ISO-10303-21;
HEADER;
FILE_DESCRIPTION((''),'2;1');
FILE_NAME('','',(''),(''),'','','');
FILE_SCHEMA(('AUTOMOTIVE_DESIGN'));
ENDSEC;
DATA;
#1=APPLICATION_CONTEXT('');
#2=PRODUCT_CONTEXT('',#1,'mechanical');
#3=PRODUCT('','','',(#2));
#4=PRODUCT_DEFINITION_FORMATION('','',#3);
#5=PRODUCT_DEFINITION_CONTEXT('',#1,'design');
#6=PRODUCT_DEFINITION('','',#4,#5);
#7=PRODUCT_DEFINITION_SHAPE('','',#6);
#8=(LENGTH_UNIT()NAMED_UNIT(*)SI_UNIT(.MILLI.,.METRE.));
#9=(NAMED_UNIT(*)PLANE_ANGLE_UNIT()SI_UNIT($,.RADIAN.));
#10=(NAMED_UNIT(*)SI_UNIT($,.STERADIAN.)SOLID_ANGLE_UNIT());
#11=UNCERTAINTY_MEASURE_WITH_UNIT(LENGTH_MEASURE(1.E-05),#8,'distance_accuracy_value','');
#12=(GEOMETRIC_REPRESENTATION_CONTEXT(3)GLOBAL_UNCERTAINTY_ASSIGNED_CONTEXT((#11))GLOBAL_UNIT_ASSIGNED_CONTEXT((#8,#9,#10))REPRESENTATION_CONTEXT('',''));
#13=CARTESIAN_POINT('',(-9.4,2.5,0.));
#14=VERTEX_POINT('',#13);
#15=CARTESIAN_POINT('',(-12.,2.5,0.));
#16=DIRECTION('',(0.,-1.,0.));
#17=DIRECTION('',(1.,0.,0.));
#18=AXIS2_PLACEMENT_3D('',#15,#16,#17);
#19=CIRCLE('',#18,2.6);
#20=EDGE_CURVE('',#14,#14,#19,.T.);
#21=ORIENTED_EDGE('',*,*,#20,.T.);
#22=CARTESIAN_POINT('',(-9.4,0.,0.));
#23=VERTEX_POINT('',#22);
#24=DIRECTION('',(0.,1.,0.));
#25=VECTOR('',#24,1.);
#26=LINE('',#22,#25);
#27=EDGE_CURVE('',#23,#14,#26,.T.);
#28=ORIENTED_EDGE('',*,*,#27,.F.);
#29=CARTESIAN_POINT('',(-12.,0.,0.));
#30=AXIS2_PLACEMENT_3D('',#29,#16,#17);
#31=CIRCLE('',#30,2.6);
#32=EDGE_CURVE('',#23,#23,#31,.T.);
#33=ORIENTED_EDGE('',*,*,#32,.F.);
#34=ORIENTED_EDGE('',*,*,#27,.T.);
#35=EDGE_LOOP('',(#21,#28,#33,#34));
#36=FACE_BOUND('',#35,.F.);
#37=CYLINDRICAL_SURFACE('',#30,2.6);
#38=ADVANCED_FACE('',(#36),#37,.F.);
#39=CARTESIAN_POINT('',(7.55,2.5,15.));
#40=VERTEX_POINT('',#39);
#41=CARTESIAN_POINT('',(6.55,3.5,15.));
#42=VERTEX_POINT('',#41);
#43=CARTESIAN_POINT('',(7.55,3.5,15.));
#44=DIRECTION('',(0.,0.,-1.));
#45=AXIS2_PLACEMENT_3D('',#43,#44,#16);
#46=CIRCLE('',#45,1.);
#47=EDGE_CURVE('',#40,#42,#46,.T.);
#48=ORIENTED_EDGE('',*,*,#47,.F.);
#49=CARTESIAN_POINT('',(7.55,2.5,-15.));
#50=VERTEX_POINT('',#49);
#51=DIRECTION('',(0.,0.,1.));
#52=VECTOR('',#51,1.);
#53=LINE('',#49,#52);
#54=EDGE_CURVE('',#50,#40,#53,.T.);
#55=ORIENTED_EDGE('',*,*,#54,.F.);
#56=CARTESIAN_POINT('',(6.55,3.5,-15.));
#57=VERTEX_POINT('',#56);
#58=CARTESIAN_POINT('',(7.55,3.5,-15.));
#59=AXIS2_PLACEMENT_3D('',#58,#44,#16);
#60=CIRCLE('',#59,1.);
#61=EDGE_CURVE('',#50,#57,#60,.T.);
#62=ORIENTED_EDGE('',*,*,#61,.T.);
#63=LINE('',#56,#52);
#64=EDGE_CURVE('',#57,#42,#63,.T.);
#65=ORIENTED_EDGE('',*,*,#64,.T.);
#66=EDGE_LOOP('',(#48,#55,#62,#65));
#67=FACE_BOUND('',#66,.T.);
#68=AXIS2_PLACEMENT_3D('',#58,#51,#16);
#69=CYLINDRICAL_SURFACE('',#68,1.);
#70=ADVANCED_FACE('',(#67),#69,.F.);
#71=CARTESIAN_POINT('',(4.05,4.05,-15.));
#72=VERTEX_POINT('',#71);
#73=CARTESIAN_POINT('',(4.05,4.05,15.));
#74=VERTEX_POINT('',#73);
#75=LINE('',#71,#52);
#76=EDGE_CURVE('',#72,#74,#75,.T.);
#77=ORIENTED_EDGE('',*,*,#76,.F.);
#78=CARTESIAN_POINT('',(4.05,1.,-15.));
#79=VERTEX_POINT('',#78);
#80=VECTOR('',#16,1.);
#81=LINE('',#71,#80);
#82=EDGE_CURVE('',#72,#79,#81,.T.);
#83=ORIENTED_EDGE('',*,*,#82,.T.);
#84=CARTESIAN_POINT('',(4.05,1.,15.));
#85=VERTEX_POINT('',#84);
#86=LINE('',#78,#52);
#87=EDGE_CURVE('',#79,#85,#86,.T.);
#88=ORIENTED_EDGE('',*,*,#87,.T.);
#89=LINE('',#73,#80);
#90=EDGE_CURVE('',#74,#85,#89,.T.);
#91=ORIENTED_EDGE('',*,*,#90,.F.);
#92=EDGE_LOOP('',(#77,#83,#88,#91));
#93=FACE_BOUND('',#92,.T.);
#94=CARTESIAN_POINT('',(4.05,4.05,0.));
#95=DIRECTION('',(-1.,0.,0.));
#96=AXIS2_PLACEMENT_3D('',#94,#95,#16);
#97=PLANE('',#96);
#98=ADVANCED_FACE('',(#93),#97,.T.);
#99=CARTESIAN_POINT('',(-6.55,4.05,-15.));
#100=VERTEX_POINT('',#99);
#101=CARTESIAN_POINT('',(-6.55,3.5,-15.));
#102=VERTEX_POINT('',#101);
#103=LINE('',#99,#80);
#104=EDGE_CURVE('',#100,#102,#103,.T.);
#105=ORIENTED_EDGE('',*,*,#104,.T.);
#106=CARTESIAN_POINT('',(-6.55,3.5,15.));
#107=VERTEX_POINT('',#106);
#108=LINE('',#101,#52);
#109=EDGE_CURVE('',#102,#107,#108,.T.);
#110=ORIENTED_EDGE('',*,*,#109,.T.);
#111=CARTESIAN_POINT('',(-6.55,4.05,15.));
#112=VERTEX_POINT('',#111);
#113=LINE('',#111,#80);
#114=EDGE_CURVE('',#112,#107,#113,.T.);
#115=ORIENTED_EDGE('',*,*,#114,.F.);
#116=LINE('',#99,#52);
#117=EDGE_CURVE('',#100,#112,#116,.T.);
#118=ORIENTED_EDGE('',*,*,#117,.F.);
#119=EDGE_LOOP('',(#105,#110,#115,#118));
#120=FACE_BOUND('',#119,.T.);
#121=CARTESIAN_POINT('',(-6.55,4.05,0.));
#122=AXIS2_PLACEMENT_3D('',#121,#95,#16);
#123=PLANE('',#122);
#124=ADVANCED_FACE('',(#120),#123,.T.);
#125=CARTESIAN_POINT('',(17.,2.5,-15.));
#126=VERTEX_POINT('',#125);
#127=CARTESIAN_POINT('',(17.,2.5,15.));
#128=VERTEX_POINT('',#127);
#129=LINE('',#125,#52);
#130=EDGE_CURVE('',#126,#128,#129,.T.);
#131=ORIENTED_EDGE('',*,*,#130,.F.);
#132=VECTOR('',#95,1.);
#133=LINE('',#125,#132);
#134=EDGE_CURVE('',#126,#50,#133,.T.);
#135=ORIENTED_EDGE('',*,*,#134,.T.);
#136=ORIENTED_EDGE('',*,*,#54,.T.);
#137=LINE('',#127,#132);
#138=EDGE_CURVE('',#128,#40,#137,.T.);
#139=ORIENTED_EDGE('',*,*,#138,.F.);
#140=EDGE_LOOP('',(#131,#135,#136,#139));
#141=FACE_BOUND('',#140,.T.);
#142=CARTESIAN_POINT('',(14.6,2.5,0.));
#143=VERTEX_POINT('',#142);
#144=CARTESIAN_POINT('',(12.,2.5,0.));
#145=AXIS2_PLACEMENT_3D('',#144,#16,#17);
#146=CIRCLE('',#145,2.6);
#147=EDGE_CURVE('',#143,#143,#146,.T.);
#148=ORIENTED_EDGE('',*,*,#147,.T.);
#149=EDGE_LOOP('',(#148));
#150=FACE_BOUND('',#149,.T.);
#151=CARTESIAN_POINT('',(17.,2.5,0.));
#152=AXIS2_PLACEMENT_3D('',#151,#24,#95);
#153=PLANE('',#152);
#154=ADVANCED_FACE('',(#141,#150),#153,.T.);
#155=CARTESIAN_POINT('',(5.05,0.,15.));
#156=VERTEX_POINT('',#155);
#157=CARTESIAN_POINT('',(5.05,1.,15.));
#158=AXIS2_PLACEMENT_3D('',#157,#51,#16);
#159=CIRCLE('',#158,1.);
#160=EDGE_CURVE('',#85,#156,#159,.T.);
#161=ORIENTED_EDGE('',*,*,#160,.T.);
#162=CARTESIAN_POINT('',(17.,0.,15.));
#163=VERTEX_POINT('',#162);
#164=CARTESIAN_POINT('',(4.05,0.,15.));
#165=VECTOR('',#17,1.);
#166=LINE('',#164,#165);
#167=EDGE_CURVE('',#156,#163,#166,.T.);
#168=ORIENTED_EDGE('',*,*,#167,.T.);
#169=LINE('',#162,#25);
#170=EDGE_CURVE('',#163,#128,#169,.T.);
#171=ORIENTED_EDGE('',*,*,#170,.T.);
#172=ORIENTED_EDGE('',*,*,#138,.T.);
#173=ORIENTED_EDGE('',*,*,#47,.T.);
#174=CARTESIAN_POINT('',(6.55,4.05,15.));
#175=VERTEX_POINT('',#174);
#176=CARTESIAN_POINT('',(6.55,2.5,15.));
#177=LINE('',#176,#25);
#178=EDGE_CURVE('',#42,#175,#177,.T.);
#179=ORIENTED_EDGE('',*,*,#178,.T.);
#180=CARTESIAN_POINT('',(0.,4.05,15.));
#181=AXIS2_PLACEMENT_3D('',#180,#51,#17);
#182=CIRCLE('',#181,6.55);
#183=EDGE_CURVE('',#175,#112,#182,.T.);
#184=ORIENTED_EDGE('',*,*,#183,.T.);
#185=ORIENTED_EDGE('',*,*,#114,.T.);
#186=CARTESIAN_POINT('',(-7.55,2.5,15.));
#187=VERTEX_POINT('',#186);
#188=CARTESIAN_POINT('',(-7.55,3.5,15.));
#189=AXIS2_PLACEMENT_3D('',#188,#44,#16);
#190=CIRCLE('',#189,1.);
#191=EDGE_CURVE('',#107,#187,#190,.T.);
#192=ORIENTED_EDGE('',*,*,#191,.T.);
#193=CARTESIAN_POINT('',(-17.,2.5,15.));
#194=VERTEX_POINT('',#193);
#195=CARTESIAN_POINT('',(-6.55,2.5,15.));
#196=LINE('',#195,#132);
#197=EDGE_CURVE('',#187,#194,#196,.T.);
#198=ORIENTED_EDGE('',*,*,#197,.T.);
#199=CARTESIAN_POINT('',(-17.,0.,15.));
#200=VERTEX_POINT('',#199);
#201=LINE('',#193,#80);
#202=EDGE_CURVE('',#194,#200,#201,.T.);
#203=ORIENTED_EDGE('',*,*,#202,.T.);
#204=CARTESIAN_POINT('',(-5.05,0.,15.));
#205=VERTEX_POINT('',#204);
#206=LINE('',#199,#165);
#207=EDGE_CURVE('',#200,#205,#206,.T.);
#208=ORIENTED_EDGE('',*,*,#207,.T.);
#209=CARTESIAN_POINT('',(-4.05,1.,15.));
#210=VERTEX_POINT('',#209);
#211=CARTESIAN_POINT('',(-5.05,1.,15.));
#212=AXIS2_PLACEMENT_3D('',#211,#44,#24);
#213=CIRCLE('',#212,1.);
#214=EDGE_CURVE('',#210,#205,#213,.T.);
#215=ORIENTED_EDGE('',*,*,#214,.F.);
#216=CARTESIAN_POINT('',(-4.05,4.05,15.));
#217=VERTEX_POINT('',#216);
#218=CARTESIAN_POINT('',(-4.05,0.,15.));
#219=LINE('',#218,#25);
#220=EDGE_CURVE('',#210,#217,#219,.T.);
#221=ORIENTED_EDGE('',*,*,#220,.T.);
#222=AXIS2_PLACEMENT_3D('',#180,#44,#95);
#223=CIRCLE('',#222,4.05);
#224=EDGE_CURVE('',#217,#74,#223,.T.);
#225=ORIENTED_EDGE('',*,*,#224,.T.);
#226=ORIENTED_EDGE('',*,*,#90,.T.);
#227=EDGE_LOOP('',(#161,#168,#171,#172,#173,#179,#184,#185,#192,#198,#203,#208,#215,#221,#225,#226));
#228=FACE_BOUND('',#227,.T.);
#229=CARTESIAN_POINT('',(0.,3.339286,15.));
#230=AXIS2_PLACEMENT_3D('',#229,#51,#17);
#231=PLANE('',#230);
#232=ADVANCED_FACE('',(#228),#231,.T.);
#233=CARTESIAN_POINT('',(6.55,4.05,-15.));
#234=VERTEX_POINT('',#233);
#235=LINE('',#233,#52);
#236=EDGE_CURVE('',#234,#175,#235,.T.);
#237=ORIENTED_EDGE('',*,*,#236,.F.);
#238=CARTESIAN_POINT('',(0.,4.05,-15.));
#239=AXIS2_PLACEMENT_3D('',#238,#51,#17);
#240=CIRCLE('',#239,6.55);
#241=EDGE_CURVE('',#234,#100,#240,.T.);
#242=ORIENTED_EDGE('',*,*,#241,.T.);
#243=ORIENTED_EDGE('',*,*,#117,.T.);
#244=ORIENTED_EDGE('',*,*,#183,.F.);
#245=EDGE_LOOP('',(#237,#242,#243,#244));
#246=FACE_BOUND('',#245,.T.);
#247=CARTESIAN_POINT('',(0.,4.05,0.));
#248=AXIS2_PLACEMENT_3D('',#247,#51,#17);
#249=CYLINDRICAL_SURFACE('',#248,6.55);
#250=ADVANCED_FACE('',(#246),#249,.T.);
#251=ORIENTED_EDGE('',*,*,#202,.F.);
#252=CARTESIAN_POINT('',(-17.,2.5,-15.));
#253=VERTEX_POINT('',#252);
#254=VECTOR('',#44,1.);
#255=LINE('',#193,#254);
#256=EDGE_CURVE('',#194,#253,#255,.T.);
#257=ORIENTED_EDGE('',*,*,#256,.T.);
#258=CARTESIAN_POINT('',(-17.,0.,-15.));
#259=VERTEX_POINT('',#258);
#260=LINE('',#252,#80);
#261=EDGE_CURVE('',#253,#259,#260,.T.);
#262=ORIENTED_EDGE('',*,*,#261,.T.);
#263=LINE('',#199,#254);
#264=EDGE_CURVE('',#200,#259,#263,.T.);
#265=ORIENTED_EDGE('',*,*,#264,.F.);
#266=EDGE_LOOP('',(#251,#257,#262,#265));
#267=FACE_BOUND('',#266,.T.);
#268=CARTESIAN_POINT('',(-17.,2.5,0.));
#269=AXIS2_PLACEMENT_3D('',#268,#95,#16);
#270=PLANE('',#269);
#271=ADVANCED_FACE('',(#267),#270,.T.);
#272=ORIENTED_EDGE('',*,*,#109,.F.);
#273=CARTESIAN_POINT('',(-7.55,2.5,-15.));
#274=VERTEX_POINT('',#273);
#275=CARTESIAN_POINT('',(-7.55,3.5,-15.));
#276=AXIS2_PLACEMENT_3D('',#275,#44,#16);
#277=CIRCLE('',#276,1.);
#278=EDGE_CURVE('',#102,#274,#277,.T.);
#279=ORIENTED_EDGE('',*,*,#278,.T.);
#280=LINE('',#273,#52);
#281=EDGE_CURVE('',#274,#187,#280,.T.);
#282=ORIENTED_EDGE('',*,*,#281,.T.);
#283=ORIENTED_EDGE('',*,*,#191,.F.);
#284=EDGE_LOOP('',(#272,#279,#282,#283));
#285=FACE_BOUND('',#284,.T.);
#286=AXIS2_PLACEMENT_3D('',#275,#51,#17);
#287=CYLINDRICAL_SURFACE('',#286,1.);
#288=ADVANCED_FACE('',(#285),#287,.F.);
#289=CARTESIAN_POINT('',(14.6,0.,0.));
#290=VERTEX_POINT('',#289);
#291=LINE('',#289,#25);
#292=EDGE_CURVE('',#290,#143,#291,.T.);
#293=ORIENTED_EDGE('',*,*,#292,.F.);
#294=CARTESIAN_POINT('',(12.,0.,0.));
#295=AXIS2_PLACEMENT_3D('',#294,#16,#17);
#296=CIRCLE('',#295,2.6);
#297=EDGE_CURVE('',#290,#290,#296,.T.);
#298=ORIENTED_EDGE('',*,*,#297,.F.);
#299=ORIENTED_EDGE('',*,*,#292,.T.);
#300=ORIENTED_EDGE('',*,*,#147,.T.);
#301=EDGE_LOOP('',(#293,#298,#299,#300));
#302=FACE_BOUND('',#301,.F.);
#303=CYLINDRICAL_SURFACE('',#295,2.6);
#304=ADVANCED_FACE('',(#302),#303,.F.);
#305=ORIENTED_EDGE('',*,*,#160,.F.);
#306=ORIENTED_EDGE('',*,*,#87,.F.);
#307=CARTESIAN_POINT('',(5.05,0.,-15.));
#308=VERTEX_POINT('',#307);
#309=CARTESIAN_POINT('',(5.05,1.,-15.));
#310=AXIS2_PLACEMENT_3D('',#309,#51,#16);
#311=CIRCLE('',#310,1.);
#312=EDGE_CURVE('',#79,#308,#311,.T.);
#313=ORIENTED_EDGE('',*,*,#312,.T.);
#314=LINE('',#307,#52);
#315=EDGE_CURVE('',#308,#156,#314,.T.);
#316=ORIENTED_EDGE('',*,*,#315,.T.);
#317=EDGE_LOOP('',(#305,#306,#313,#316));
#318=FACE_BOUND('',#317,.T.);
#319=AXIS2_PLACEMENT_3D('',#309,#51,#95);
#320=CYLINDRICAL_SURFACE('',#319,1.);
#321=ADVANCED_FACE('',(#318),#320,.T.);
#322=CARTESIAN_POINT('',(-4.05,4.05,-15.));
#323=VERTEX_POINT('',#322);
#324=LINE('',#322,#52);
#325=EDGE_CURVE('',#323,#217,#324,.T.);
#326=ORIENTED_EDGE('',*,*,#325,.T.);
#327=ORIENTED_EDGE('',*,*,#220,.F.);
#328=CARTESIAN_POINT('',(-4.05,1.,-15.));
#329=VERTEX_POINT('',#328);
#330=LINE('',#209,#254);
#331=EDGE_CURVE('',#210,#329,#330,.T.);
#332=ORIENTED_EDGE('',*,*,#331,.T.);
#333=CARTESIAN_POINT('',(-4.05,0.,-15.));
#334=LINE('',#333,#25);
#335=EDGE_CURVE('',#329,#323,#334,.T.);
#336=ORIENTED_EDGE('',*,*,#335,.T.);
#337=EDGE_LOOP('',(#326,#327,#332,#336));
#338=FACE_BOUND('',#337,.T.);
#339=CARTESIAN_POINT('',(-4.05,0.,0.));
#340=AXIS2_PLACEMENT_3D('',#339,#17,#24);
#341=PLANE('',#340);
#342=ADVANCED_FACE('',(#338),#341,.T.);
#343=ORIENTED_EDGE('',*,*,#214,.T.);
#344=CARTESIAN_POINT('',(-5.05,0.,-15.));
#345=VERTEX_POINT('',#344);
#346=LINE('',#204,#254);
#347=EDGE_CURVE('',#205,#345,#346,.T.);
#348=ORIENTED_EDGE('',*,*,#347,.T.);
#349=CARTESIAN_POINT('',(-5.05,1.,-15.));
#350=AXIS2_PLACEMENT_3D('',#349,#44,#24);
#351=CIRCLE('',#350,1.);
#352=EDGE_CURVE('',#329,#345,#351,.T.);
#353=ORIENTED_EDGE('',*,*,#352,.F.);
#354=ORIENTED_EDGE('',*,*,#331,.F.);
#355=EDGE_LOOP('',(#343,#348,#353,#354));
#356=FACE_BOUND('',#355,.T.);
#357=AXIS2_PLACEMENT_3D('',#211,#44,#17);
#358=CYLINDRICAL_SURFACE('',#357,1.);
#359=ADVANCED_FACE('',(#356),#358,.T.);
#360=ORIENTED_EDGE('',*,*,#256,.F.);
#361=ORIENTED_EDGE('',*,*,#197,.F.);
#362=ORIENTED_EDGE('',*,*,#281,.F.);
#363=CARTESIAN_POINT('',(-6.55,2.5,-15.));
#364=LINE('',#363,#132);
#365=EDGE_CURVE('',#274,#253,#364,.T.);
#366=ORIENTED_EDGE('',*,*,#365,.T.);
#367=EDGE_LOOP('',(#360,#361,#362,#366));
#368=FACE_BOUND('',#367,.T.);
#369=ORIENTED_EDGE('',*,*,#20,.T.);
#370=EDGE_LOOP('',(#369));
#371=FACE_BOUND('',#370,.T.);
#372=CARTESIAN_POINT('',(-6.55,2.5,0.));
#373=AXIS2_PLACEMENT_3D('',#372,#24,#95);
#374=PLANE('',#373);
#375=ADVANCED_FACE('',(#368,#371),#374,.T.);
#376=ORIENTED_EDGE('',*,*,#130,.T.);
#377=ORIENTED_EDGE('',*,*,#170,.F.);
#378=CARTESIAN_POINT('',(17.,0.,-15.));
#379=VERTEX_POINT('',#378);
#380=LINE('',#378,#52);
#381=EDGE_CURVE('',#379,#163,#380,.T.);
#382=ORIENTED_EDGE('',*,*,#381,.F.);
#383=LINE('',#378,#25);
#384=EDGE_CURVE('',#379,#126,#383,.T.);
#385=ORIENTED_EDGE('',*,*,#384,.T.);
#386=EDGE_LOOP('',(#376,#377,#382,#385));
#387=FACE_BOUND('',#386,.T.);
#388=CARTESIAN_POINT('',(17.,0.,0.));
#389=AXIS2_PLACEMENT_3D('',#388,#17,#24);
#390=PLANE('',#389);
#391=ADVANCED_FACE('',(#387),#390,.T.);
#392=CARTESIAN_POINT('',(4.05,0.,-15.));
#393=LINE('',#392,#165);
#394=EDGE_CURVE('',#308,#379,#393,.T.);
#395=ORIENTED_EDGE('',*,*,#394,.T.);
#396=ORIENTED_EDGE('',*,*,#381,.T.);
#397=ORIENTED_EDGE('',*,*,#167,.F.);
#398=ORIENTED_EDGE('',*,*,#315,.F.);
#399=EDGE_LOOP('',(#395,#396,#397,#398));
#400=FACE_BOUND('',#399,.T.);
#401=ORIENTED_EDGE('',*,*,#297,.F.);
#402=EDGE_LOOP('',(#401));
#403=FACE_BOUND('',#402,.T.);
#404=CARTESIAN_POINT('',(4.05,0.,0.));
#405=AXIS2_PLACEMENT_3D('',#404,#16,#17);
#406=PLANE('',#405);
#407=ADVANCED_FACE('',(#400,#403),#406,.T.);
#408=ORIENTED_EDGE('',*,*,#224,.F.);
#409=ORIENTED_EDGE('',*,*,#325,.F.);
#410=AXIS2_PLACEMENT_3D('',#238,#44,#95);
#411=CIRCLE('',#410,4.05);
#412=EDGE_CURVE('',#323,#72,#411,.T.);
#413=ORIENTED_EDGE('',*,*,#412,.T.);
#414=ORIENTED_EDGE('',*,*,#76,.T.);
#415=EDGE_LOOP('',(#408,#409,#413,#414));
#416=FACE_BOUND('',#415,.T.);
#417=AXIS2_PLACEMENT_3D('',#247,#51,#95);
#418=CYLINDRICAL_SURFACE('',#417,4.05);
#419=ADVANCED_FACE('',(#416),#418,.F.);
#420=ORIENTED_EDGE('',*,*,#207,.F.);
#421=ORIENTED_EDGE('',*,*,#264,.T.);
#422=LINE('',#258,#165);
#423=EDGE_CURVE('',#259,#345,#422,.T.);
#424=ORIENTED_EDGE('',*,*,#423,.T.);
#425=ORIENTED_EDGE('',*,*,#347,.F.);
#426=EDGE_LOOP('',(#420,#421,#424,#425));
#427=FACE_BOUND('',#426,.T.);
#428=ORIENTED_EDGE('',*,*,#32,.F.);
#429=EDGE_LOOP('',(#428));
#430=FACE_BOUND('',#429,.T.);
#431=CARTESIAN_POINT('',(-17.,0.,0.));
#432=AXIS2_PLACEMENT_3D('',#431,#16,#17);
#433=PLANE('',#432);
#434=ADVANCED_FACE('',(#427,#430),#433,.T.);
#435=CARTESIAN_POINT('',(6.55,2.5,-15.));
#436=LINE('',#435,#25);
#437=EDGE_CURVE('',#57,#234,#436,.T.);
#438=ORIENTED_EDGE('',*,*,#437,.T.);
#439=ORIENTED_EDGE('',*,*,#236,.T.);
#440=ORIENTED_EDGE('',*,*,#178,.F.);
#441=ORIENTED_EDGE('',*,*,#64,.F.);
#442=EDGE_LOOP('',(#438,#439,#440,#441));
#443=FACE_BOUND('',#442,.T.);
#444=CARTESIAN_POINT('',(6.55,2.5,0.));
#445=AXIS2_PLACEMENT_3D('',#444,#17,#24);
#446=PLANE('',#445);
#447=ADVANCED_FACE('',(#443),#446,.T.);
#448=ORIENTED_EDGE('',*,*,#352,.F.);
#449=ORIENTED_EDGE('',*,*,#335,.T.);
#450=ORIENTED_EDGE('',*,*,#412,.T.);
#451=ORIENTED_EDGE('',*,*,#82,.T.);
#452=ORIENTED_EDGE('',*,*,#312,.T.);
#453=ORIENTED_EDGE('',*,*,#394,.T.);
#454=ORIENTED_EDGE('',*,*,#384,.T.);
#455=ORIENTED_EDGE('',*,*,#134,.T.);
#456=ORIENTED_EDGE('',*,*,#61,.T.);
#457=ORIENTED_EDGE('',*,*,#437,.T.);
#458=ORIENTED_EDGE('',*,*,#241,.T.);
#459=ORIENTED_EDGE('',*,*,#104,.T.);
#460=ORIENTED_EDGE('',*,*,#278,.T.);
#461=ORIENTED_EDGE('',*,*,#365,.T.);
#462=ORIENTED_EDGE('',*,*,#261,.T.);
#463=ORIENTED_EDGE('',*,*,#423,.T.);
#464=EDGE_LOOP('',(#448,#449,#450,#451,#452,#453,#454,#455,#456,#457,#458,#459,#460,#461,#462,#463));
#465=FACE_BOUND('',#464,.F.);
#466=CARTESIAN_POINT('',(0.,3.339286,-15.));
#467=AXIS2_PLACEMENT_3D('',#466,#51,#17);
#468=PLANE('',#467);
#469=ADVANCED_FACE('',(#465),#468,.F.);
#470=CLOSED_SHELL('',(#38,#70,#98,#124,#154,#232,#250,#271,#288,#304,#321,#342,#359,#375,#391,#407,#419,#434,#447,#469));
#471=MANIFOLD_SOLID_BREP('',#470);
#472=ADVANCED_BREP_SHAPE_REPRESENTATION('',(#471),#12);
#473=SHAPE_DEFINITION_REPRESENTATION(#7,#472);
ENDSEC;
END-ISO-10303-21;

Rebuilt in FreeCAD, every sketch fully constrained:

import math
import FreeCAD as App
import Part
import Sketcher

V = App.Vector


def edges_at(feature, points):
    """Names of the edges that pass closest to the given points."""
    edges = feature.Shape.Edges
    near = lambda p: min(range(len(edges)), key=lambda i: edges[i].distToShape(Part.Vertex(*p))[0])
    return sorted({f"Edge{near(p) + 1}" for p in points})

doc = App.newDocument("Part")
body = doc.addObject("PartDesign::Body", "Body")

# Sketch on XY plane
sketch1 = body.newObject("Sketcher::SketchObject", "Sketch")
sketch1.AttachmentSupport = (doc.getObject("XY_Plane"), [""])
sketch1.MapMode = "FlatFace"
sketch1.addGeometry([
    Part.LineSegment(V(-4, 0, 0), V(-4, 4, 0)),  # 0
    Part.ArcOfCircle(Part.Circle(V(0, 4, 0), V(0, 0, 1), 4), math.radians(0), math.radians(180)),  # 1
    Part.LineSegment(V(4, 4, 0), V(4, 0, 0)),  # 2
    Part.LineSegment(V(4, 0, 0), V(17, 0, 0)),  # 3
    Part.LineSegment(V(17, 0, 0), V(17, 2.5, 0)),  # 4
    Part.LineSegment(V(17, 2.5, 0), V(6.5, 2.5, 0)),  # 5
    Part.LineSegment(V(6.5, 2.5, 0), V(6.5, 4, 0)),  # 6
    Part.ArcOfCircle(Part.Circle(V(0, 4, 0), V(0, 0, 1), 6.5), math.radians(0), math.radians(180)),  # 7
    Part.LineSegment(V(-6.5, 4, 0), V(-6.5, 2.5, 0)),  # 8
    Part.LineSegment(V(-6.5, 2.5, 0), V(-17, 2.5, 0)),  # 9
    Part.LineSegment(V(-17, 2.5, 0), V(-17, 0, 0)),  # 10
    Part.LineSegment(V(-17, 0, 0), V(-4, 0, 0)),  # 11
], False)
sketch1.addConstraint([
    Sketcher.Constraint("Tangent", 0, 2, 1, 2),
    Sketcher.Constraint("Tangent", 1, 1, 2, 1),
    Sketcher.Constraint("Coincident", 2, 2, 3, 1),
    Sketcher.Constraint("Coincident", 3, 2, 4, 1),
    Sketcher.Constraint("Coincident", 4, 2, 5, 1),
    Sketcher.Constraint("Coincident", 5, 2, 6, 1),
    Sketcher.Constraint("Tangent", 6, 2, 7, 1),
    Sketcher.Constraint("Tangent", 7, 2, 8, 1),
    Sketcher.Constraint("Coincident", 8, 2, 9, 1),
    Sketcher.Constraint("Coincident", 9, 2, 10, 1),
    Sketcher.Constraint("Coincident", 10, 2, 11, 1),
    Sketcher.Constraint("Coincident", 11, 2, 0, 1),
    Sketcher.Constraint("Vertical", 0),
    Sketcher.Constraint("Vertical", 2),
    Sketcher.Constraint("Horizontal", 3),
    Sketcher.Constraint("Vertical", 4),
    Sketcher.Constraint("Horizontal", 5),
    Sketcher.Constraint("Vertical", 6),
    Sketcher.Constraint("Vertical", 8),
    Sketcher.Constraint("Horizontal", 9),
    Sketcher.Constraint("Vertical", 10),
    Sketcher.Constraint("Horizontal", 11),
    Sketcher.Constraint("Coincident", 7, 3, 1, 3),
    Sketcher.Constraint("Symmetric", 3, 2, 10, 2, -1, 1),
    Sketcher.Constraint("Symmetric", 5, 2, 8, 2, -2),
    Sketcher.Constraint("PointOnObject", 2, 2, -1),
    Sketcher.Constraint("Radius", 1, 4.05),
    Sketcher.Constraint("Radius", 7, 6.55),
    Sketcher.Constraint("DistanceY", 4, 1, 4, 2, 2.5),
    Sketcher.Constraint("DistanceX", -1, 1, 3, 2, 17.0),
    Sketcher.Constraint("DistanceY", 0, 1, 0, 2, 4.05),
])
pad1 = body.newObject("PartDesign::Pad", "Pad")
pad1.Profile = sketch1
pad1.Length = 30
pad1.Midplane = True

# Sketch on XZ plane
sketch2 = body.newObject("Sketcher::SketchObject", "Sketch001")
sketch2.AttachmentSupport = (doc.getObject("XZ_Plane"), [""])
sketch2.MapMode = "FlatFace"
sketch2.addGeometry([
    Part.Circle(V(-12, 0, 0), V(0, 0, 1), 2.6),
    Part.Circle(V(12, 0, 0), V(0, 0, 1), 2.6),
], False)
sketch2.addConstraint([
    Sketcher.Constraint("Equal", 0, 1),
    Sketcher.Constraint("Symmetric", 0, 3, 1, 3, -1, 1),
    Sketcher.Constraint("PointOnObject", 0, 3, -1),
    Sketcher.Constraint("Diameter", 0, 5.2),
    Sketcher.Constraint("DistanceX", 0, 3, -1, 1, 12.0),
])
pocket1 = body.newObject("PartDesign::Pocket", "Pocket")
pocket1.Profile = sketch2
pocket1.Type = "ThroughAll"
doc.recompute()

fillet = body.newObject("PartDesign::Fillet", "Fillet")
fillet.Base = (pocket1, edges_at(pocket1, [
    (-4.05, 0, 0),
    (4.05, 0, 0),
    (6.55, 2.5, 0),
    (-6.55, 2.5, 0),
]))
fillet.Radius = 1

doc.recompute()
